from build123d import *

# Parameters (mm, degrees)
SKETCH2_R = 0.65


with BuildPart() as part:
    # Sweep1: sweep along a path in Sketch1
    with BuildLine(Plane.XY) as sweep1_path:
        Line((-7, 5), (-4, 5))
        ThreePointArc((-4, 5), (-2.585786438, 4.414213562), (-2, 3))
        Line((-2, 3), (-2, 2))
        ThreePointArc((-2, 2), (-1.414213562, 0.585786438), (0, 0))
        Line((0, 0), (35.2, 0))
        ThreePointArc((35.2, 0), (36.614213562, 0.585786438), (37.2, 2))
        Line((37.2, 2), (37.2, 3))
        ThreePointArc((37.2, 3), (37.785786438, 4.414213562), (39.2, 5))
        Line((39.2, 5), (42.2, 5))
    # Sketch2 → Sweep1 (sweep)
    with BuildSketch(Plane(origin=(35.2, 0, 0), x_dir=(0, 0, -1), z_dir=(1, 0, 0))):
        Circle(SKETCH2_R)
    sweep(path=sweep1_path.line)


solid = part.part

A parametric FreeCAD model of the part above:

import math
import FreeCAD as App
import Part
import Sketcher
from FreeCAD import Vector
Q = App.Units.Quantity

doc = App.newDocument("Part")
body = doc.addObject("PartDesign::Body", "Body")

# Sketch on YZ plane
sketch1 = body.newObject("Sketcher::SketchObject", "Sketch")
sketch1.AttachmentSupport = (doc.getObject("YZ_Plane"), [""])
sketch1.MapMode = "FlatFace"
sketch1.AttachmentOffset = App.Placement(Vector(0, 0, 35.2), App.Rotation())
sketch1.addGeometry(Part.Circle(Vector(0, 0, 0), Vector(0, 0, 1), 0.7), False)
sketch1.addConstraint([
    Sketcher.Constraint("Coincident", 0, 3, -1, 1),
    Sketcher.Constraint("Diameter", 0, Q("1.3 mm")),
])

# Sketch on XY plane
sketch2 = body.newObject("Sketcher::SketchObject", "Sketch001")
sketch2.AttachmentSupport = (doc.getObject("XY_Plane"), [""])
sketch2.MapMode = "FlatFace"
sketch2.addGeometry([
    Part.LineSegment(Vector(-7, 5, 0), Vector(-4, 5, 0)),  # 0
    Part.ArcOfCircle(Part.Circle(Vector(-4, 3, 0), Vector(0, 0, 1), 2), math.radians(0), math.radians(90)),  # 1
    Part.LineSegment(Vector(-2, 3, 0), Vector(-2, 2, 0)),  # 2
    Part.ArcOfCircle(Part.Circle(Vector(0, 2, 0), Vector(0, 0, 1), 2), math.radians(-180), math.radians(-90)),  # 3
    Part.LineSegment(Vector(0, 0, 0), Vector(35.2, 0, 0)),  # 4
    Part.ArcOfCircle(Part.Circle(Vector(35.2, 2, 0), Vector(0, 0, 1), 2), math.radians(-90), math.radians(0)),  # 5
    Part.LineSegment(Vector(37.2, 2, 0), Vector(37.2, 3, 0)),  # 6
    Part.ArcOfCircle(Part.Circle(Vector(39.2, 3, 0), Vector(0, 0, 1), 2), math.radians(90), math.radians(180)),  # 7
    Part.LineSegment(Vector(39.2, 5, 0), Vector(42.2, 5, 0)),  # 8
], False)
sketch2.addConstraint([
    Sketcher.Constraint("Tangent", 0, 2, 1, 2),
    Sketcher.Constraint("Tangent", 1, 1, 2, 1),
    Sketcher.Constraint("Tangent", 2, 2, 3, 1),
    Sketcher.Constraint("Tangent", 3, 2, 4, 1),
    Sketcher.Constraint("Tangent", 4, 2, 5, 1),
    Sketcher.Constraint("Tangent", 5, 2, 6, 1),
    Sketcher.Constraint("Tangent", 6, 2, 7, 2),
    Sketcher.Constraint("Tangent", 7, 1, 8, 1),
    Sketcher.Constraint("Horizontal", 0),
    Sketcher.Constraint("Vertical", 2),
    Sketcher.Constraint("Horizontal", 4),
    Sketcher.Constraint("Vertical", 6),
    Sketcher.Constraint("Horizontal", 8),
    Sketcher.Constraint("Coincident", 3, 2, -1, 1),
    Sketcher.Constraint("Equal", 1, 3),
    Sketcher.Constraint("Equal", 3, 5),
    Sketcher.Constraint("Equal", 5, 7),
    Sketcher.Constraint("Horizontal", 1, 3, 7, 3),
    Sketcher.Constraint("Equal", 0, 8),
    Sketcher.Constraint("Radius", 1, Q("2 mm")),
    Sketcher.Constraint("DistanceX", 0, 1, 0, 2, Q("3 mm")),
    Sketcher.Constraint("DistanceY", 2, 2, 2, 1, Q("1 mm")),
    Sketcher.Constraint("DistanceX", 4, 1, 4, 2, Q("35.2 mm")),
])
doc.recompute()

additivepipe = body.newObject("PartDesign::AdditivePipe", "AdditivePipe")
additivepipe.Profile = sketch1
additivepipe.Spine = (sketch2, ["Edge1", "Edge2", "Edge3", "Edge4", "Edge5", "Edge6", "Edge7", "Edge8", "Edge9"])

doc.recompute()
